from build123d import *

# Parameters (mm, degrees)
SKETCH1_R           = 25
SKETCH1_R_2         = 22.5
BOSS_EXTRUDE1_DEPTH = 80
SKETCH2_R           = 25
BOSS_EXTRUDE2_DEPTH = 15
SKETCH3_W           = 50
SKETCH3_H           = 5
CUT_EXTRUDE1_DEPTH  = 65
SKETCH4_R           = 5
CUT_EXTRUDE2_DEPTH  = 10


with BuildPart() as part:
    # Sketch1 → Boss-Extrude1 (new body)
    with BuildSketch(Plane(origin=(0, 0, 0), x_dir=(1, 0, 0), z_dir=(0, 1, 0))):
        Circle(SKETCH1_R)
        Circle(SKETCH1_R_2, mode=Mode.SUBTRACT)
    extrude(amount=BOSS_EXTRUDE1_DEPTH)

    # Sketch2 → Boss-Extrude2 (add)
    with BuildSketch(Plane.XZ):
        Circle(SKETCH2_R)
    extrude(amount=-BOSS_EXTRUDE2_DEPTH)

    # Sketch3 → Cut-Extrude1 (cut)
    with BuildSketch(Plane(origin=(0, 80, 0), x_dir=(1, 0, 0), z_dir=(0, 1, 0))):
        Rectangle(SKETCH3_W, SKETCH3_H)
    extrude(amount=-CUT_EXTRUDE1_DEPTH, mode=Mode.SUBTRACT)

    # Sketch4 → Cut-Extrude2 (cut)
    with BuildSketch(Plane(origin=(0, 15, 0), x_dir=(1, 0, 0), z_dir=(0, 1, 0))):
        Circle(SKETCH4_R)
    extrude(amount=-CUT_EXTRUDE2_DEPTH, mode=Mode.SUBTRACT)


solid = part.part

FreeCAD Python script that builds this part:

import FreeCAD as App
import Part
import Sketcher
from FreeCAD import Vector


def add_polygon(sketch, points):
    """Adds a closed chain of lines whose ends are joined by coincident constraints."""
    first, n = sketch.GeometryCount, len(points)
    for a, b in zip(points, points[1:] + points[:1]):
        sketch.addGeometry(Part.LineSegment(App.Vector(*a, 0), App.Vector(*b, 0)), False)
    for i in range(n):
        sketch.addConstraint(Sketcher.Constraint("Coincident", first + i, 2, first + (i + 1) % n, 1))

doc = App.newDocument("Part")
body = doc.addObject("PartDesign::Body", "Body")

sketch1 = body.newObject("Sketcher::SketchObject", "Sketch")
sketch1.AttachmentSupport = (doc.getObject("XZ_Plane"), [""])
sketch1.MapMode = "FlatFace"
sketch1.addGeometry([
    Part.Circle(Vector(0, 0, 0), Vector(0, 0, 1), 25),
    Part.Circle(Vector(0, 0, 0), Vector(0, 0, 1), 22.5),
], False)
sketch1.addConstraint([
    Sketcher.Constraint("Coincident", 0, 3, -1, 1),
    Sketcher.Constraint("Coincident", 1, 3, -1, 1),
    Sketcher.Constraint("Diameter", 0, 50.0),
    Sketcher.Constraint("Diameter", 1, 45.0),
])
pad1 = body.newObject("PartDesign::Pad", "Pad")
pad1.Profile = sketch1
pad1.Length = 80
pad1.Reversed = True

sketch2 = body.newObject("Sketcher::SketchObject", "Sketch001")
sketch2.AttachmentSupport = (doc.getObject("XZ_Plane"), [""])
sketch2.MapMode = "FlatFace"
sketch2.addGeometry(Part.Circle(Vector(0, 0, 0), Vector(0, 0, 1), 25), False)
sketch2.addConstraint([
    Sketcher.Constraint("Coincident", 0, 3, -1, 1),
    Sketcher.Constraint("Diameter", 0, 50.0),
])
pad2 = body.newObject("PartDesign::Pad", "Pad001")
pad2.Profile = sketch2
pad2.Length = 15
pad2.Reversed = True

sketch3 = body.newObject("Sketcher::SketchObject", "Sketch002")
sketch3.AttachmentSupport = (doc.getObject("XZ_Plane"), [""])
sketch3.MapMode = "FlatFace"
sketch3.AttachmentOffset = App.Placement(Vector(0, 0, -80), App.Rotation())
add_polygon(sketch3, [(-25, -2.5), (-25, 2.5), (25, 2.5), (25, -2.5)])
sketch3.addConstraint([
    Sketcher.Constraint("Vertical", 0),
    Sketcher.Constraint("Horizontal", 1),
    Sketcher.Constraint("Vertical", 2),
    Sketcher.Constraint("Horizontal", 3),
    Sketcher.Constraint("Symmetric", 0, 2, 2, 2, -1, 1),
    Sketcher.Constraint("DistanceX", 1, 1, 1, 2, 50.0),
    Sketcher.Constraint("DistanceY", 0, 1, 0, 2, 5.0),
])
pocket1 = body.newObject("PartDesign::Pocket", "Pocket")
pocket1.Profile = sketch3
pocket1.Length = 65
pocket1.Reversed = True

sketch4 = body.newObject("Sketcher::SketchObject", "Sketch003")
sketch4.AttachmentSupport = (doc.getObject("XZ_Plane"), [""])
sketch4.MapMode = "FlatFace"
sketch4.AttachmentOffset = App.Placement(Vector(0, 0, -15), App.Rotation())
sketch4.addGeometry(Part.Circle(Vector(0, 0, 0), Vector(0, 0, 1), 5), False)
sketch4.addConstraint([
    Sketcher.Constraint("Coincident", 0, 3, -1, 1),
    Sketcher.Constraint("Diameter", 0, 10.0),
])
pocket2 = body.newObject("PartDesign::Pocket", "Pocket001")
pocket2.Profile = sketch4
pocket2.Length = 10
pocket2.Reversed = True

doc.recompute()
